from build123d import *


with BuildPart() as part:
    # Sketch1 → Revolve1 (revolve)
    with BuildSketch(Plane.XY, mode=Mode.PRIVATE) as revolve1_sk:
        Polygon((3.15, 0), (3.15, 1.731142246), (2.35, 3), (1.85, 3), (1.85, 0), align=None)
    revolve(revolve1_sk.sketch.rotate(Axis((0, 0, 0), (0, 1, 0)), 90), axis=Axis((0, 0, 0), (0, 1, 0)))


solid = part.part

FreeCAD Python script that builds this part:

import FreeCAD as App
import Part
import Sketcher
from FreeCAD import Vector
Q = App.Units.Quantity

doc = App.newDocument("Part")
params = doc.addObject("Spreadsheet::Sheet", "Params")
for row, (alias, value) in enumerate([
    ("sketch1_height", "3 mm"),
    ("sketch1_width", "0.5 mm"),
    ("sketch1_width2", "1.3 mm"),
    ("sketch1_length", "1.5 mm"),
    ("revolution_angle", "360 deg"),
], start=1):
    params.set(f"A{row}", alias)
    params.set(f"B{row}", "=" + value)
    params.setAlias(f"B{row}", alias)

body = doc.addObject("PartDesign::Body", "Body")

sketch1 = body.newObject("Sketcher::SketchObject", "Sketch")
sketch1.AttachmentSupport = (doc.getObject("XY_Plane"), [""])
sketch1.MapMode = "FlatFace"
sketch1.addGeometry([
    Part.LineSegment(Vector(3.1, 0, 0), Vector(3.1, 1.7, 0)),
    Part.LineSegment(Vector(3.1, 1.7, 0), Vector(2.4, 3, 0)),
    Part.LineSegment(Vector(2.4, 3, 0), Vector(1.9, 3, 0)),
    Part.LineSegment(Vector(1.9, 3, 0), Vector(1.9, 0, 0)),
    Part.LineSegment(Vector(1.9, 0, 0), Vector(3.1, 0, 0)),
], False)
sketch1.addConstraint([
    Sketcher.Constraint("Coincident", 0, 2, 1, 1),
    Sketcher.Constraint("Coincident", 1, 2, 2, 1),
    Sketcher.Constraint("Coincident", 2, 2, 3, 1),
    Sketcher.Constraint("Coincident", 3, 2, 4, 1),
    Sketcher.Constraint("Coincident", 4, 2, 0, 1),
    Sketcher.Constraint("Vertical", 0),
    Sketcher.Constraint("Horizontal", 2),
    Sketcher.Constraint("Vertical", 3),
    Sketcher.Constraint("Horizontal", 4),
    Sketcher.Constraint("PointOnObject", 3, 2, -1),
    Sketcher.Constraint("DistanceY", 3, 2, 3, 1, Q("3 mm")),
    Sketcher.Constraint("DistanceX", 2, 2, 2, 1, Q("0.5 mm")),
    Sketcher.Constraint("DistanceX", 4, 1, 4, 2, Q("1.3 mm")),
    Sketcher.Constraint("Distance", 1, Q("1.5 mm")),
    Sketcher.Constraint("DistanceX", -1, 1, 0, 2, Q("3.15 mm")),
])
sketch1.setExpression("Constraints[10]", "Params.sketch1_height")
sketch1.setExpression("Constraints[11]", "Params.sketch1_width")
sketch1.setExpression("Constraints[12]", "Params.sketch1_width2")
sketch1.setExpression("Constraints[13]", "Params.sketch1_length")
revolution = body.newObject("PartDesign::Revolution", "Revolution")
revolution.Profile = sketch1
revolution.ReferenceAxis = (sketch1, ["V_Axis"])
revolution.setExpression("Angle", "Params.revolution_angle")

doc.recompute()
